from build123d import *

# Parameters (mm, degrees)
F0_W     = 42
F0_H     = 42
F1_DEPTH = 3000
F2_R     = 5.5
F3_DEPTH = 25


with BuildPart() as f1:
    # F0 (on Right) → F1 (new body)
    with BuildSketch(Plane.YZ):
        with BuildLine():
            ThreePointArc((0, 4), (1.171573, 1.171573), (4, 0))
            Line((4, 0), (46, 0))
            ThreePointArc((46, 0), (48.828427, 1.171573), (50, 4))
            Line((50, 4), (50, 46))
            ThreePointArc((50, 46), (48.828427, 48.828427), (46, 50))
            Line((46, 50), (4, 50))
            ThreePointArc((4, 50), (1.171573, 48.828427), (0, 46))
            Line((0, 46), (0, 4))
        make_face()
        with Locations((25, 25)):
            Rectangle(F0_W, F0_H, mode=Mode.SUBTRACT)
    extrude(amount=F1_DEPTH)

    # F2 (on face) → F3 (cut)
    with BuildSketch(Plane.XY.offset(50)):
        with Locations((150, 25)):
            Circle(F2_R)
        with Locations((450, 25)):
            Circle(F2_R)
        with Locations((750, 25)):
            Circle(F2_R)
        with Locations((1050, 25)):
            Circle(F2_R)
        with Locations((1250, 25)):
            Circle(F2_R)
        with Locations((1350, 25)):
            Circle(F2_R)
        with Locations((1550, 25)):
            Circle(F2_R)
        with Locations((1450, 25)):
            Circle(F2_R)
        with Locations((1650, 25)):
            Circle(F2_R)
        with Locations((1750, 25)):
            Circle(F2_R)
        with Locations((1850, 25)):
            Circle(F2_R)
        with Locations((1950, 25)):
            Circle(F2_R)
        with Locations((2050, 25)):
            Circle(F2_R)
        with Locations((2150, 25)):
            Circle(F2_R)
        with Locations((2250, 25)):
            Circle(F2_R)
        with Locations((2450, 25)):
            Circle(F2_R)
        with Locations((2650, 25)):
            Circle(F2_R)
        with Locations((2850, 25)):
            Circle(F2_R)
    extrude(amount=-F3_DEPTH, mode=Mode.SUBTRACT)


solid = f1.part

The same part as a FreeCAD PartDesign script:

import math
import FreeCAD as App
import Part
import Sketcher

V = App.Vector
Q = App.Units.Quantity

doc = App.newDocument("Part")
params = doc.addObject("Spreadsheet::Sheet", "Params")
for row, (alias, value) in enumerate([
    ("sketch1_radius", "4 mm"),
    ("sketch1_width", "42 mm"),
    ("pad1_length", "3000 mm"),
    ("sketch2_diameter", "11 mm"),
    ("pocket1_length", "25 mm"),
], start=1):
    params.set(f"A{row}", alias)
    params.set(f"B{row}", "=" + value)
    params.setAlias(f"B{row}", alias)

body = doc.addObject("PartDesign::Body", "Body")

sketch1 = body.newObject("Sketcher::SketchObject", "Sketch")
sketch1.AttachmentSupport = (doc.getObject("YZ_Plane"), [""])
sketch1.MapMode = "FlatFace"
sketch1.addGeometry([
    Part.ArcOfCircle(Part.Circle(V(4, 4, 0), V(0, 0, 1), 4), math.radians(-180), math.radians(-90)),
    Part.LineSegment(V(4, 0, 0), V(46, 0, 0)),
    Part.ArcOfCircle(Part.Circle(V(46, 4, 0), V(0, 0, 1), 4), math.radians(-90), math.radians(0)),
    Part.LineSegment(V(50, 4, 0), V(50, 46, 0)),
    Part.ArcOfCircle(Part.Circle(V(46, 46, 0), V(0, 0, 1), 4), math.radians(0), math.radians(90)),
    Part.LineSegment(V(46, 50, 0), V(4, 50, 0)),
    Part.ArcOfCircle(Part.Circle(V(4, 46, 0), V(0, 0, 1), 4), math.radians(90), math.radians(180)),
    Part.LineSegment(V(0, 46, 0), V(0, 4, 0)),
    Part.LineSegment(V(46, 4, 0), V(4, 4, 0)),
    Part.LineSegment(V(4, 4, 0), V(4, 46, 0)),
    Part.LineSegment(V(4, 46, 0), V(46, 46, 0)),
    Part.LineSegment(V(46, 46, 0), V(46, 4, 0)),
], False)
sketch1.addConstraint([
    Sketcher.Constraint("Tangent", 0, 2, 1, 1),
    Sketcher.Constraint("Tangent", 1, 2, 2, 1),
    Sketcher.Constraint("Tangent", 2, 2, 3, 1),
    Sketcher.Constraint("Tangent", 3, 2, 4, 1),
    Sketcher.Constraint("Tangent", 4, 2, 5, 1),
    Sketcher.Constraint("Tangent", 5, 2, 6, 1),
    Sketcher.Constraint("Tangent", 6, 2, 7, 1),
    Sketcher.Constraint("Tangent", 7, 2, 0, 1),
    Sketcher.Constraint("Coincident", 8, 2, 9, 1),
    Sketcher.Constraint("Coincident", 9, 2, 10, 1),
    Sketcher.Constraint("Coincident", 10, 2, 11, 1),
    Sketcher.Constraint("Coincident", 11, 2, 8, 1),
    Sketcher.Constraint("Horizontal", 1),
    Sketcher.Constraint("Vertical", 3),
    Sketcher.Constraint("Horizontal", 5),
    Sketcher.Constraint("Vertical", 7),
    Sketcher.Constraint("Horizontal", 8),
    Sketcher.Constraint("Vertical", 9),
    Sketcher.Constraint("Horizontal", 10),
    Sketcher.Constraint("Vertical", 11),
    Sketcher.Constraint("Coincident", 8, 2, 0, 3),
    Sketcher.Constraint("Coincident", 9, 2, 6, 3),
    Sketcher.Constraint("Coincident", 10, 2, 4, 3),
    Sketcher.Constraint("Equal", 0, 2),
    Sketcher.Constraint("PointOnObject", 0, 2, -1),
    Sketcher.Constraint("PointOnObject", 6, 2, -2),
    Sketcher.Constraint("Equal", 10, 3),
    Sketcher.Constraint("Radius", 0, Q("4 mm")),
    Sketcher.Constraint("DistanceX", 1, 1, 1, 2, Q("42 mm")),
])
sketch1.setExpression("Constraints[27]", "Params.sketch1_radius")
sketch1.setExpression("Constraints[28]", "Params.sketch1_width")
pad1 = body.newObject("PartDesign::Pad", "Pad")
pad1.Profile = sketch1
pad1.setExpression("Length", "Params.pad1_length")

sketch2 = body.newObject("Sketcher::SketchObject", "Sketch001")
sketch2.AttachmentSupport = (doc.getObject("XY_Plane"), [""])
sketch2.MapMode = "FlatFace"
sketch2.AttachmentOffset = App.Placement(V(0, 0, 50), App.Rotation())
sketch2.addGeometry([
    Part.Circle(V(150, 25, 0), V(0, 0, 1), 6),
    Part.Circle(V(450, 25, 0), V(0, 0, 1), 6),
    Part.Circle(V(750, 25, 0), V(0, 0, 1), 6),
    Part.Circle(V(1050, 25, 0), V(0, 0, 1), 6),
    Part.Circle(V(1250, 25, 0), V(0, 0, 1), 6),
    Part.Circle(V(1350, 25, 0), V(0, 0, 1), 6),
    Part.Circle(V(1550, 25, 0), V(0, 0, 1), 6),
    Part.Circle(V(1450, 25, 0), V(0, 0, 1), 6),
    Part.Circle(V(1650, 25, 0), V(0, 0, 1), 6),
    Part.Circle(V(1750, 25, 0), V(0, 0, 1), 6),
    Part.Circle(V(1850, 25, 0), V(0, 0, 1), 6),
    Part.Circle(V(1950, 25, 0), V(0, 0, 1), 6),
    Part.Circle(V(2050, 25, 0), V(0, 0, 1), 6),
    Part.Circle(V(2150, 25, 0), V(0, 0, 1), 6),
    Part.Circle(V(2250, 25, 0), V(0, 0, 1), 6),
    Part.Circle(V(2450, 25, 0), V(0, 0, 1), 6),
    Part.Circle(V(2650, 25, 0), V(0, 0, 1), 6),
    Part.Circle(V(2850, 25, 0), V(0, 0, 1), 6),
], False)
sketch2.addConstraint([
    Sketcher.Constraint("Equal", 0, 1),
    Sketcher.Constraint("Equal", 1, 2),
    Sketcher.Constraint("Equal", 2, 3),
    Sketcher.Constraint("Equal", 3, 4),
    Sketcher.Constraint("Equal", 4, 5),
    Sketcher.Constraint("Equal", 5, 6),
    Sketcher.Constraint("Equal", 6, 7),
    Sketcher.Constraint("Equal", 7, 8),
    Sketcher.Constraint("Equal", 8, 9),
    Sketcher.Constraint("Equal", 9, 10),
    Sketcher.Constraint("Equal", 10, 11),
    Sketcher.Constraint("Equal", 11, 12),
    Sketcher.Constraint("Equal", 12, 13),
    Sketcher.Constraint("Equal", 13, 14),
    Sketcher.Constraint("Equal", 14, 15),
    Sketcher.Constraint("Equal", 15, 16),
    Sketcher.Constraint("Equal", 16, 17),
    Sketcher.Constraint("Horizontal", 0, 3, 1, 3),
    Sketcher.Constraint("Horizontal", 1, 3, 2, 3),
    Sketcher.Constraint("Horizontal", 2, 3, 3, 3),
    Sketcher.Constraint("Horizontal", 3, 3, 4, 3),
    Sketcher.Constraint("Horizontal", 4, 3, 5, 3),
    Sketcher.Constraint("Horizontal", 5, 3, 6, 3),
    Sketcher.Constraint("Horizontal", 6, 3, 7, 3),
    Sketcher.Constraint("Horizontal", 7, 3, 8, 3),
    Sketcher.Constraint("Horizontal", 8, 3, 9, 3),
    Sketcher.Constraint("Horizontal", 9, 3, 10, 3),
    Sketcher.Constraint("Horizontal", 10, 3, 11, 3),
    Sketcher.Constraint("Horizontal", 11, 3, 12, 3),
    Sketcher.Constraint("Horizontal", 12, 3, 13, 3),
    Sketcher.Constraint("Horizontal", 13, 3, 14, 3),
    Sketcher.Constraint("Horizontal", 14, 3, 15, 3),
    Sketcher.Constraint("Horizontal", 15, 3, 16, 3),
    Sketcher.Constraint("Horizontal", 16, 3, 17, 3),
    Sketcher.Constraint("Diameter", 0, Q("11 mm")),
    Sketcher.Constraint("DistanceX", -1, 1, 0, 3, Q("150 mm")),
    Sketcher.Constraint("DistanceY", -1, 1, 0, 3, Q("25 mm")),
    Sketcher.Constraint("DistanceX", -1, 1, 1, 3, Q("450 mm")),
    Sketcher.Constraint("DistanceX", -1, 1, 2, 3, Q("750 mm")),
    Sketcher.Constraint("DistanceX", -1, 1, 3, 3, Q("1050 mm")),
    Sketcher.Constraint("DistanceX", -1, 1, 4, 3, Q("1250 mm")),
    Sketcher.Constraint("DistanceX", -1, 1, 5, 3, Q("1350 mm")),
    Sketcher.Constraint("DistanceX", -1, 1, 6, 3, Q("1550 mm")),
    Sketcher.Constraint("DistanceX", -1, 1, 7, 3, Q("1450 mm")),
    Sketcher.Constraint("DistanceX", -1, 1, 8, 3, Q("1650 mm")),
    Sketcher.Constraint("DistanceX", -1, 1, 9, 3, Q("1750 mm")),
    Sketcher.Constraint("DistanceX", -1, 1, 10, 3, Q("1850 mm")),
    Sketcher.Constraint("DistanceX", -1, 1, 11, 3, Q("1950 mm")),
    Sketcher.Constraint("DistanceX", -1, 1, 12, 3, Q("2050 mm")),
    Sketcher.Constraint("DistanceX", -1, 1, 13, 3, Q("2150 mm")),
    Sketcher.Constraint("DistanceX", -1, 1, 14, 3, Q("2250 mm")),
    Sketcher.Constraint("DistanceX", -1, 1, 15, 3, Q("2450 mm")),
    Sketcher.Constraint("DistanceX", -1, 1, 16, 3, Q("2650 mm")),
    Sketcher.Constraint("DistanceX", -1, 1, 17, 3, Q("2850 mm")),
])
sketch2.setExpression("Constraints[34]", "Params.sketch2_diameter")
pocket1 = body.newObject("PartDesign::Pocket", "Pocket")
pocket1.Profile = sketch2
pocket1.setExpression("Length", "Params.pocket1_length")

doc.recompute()
